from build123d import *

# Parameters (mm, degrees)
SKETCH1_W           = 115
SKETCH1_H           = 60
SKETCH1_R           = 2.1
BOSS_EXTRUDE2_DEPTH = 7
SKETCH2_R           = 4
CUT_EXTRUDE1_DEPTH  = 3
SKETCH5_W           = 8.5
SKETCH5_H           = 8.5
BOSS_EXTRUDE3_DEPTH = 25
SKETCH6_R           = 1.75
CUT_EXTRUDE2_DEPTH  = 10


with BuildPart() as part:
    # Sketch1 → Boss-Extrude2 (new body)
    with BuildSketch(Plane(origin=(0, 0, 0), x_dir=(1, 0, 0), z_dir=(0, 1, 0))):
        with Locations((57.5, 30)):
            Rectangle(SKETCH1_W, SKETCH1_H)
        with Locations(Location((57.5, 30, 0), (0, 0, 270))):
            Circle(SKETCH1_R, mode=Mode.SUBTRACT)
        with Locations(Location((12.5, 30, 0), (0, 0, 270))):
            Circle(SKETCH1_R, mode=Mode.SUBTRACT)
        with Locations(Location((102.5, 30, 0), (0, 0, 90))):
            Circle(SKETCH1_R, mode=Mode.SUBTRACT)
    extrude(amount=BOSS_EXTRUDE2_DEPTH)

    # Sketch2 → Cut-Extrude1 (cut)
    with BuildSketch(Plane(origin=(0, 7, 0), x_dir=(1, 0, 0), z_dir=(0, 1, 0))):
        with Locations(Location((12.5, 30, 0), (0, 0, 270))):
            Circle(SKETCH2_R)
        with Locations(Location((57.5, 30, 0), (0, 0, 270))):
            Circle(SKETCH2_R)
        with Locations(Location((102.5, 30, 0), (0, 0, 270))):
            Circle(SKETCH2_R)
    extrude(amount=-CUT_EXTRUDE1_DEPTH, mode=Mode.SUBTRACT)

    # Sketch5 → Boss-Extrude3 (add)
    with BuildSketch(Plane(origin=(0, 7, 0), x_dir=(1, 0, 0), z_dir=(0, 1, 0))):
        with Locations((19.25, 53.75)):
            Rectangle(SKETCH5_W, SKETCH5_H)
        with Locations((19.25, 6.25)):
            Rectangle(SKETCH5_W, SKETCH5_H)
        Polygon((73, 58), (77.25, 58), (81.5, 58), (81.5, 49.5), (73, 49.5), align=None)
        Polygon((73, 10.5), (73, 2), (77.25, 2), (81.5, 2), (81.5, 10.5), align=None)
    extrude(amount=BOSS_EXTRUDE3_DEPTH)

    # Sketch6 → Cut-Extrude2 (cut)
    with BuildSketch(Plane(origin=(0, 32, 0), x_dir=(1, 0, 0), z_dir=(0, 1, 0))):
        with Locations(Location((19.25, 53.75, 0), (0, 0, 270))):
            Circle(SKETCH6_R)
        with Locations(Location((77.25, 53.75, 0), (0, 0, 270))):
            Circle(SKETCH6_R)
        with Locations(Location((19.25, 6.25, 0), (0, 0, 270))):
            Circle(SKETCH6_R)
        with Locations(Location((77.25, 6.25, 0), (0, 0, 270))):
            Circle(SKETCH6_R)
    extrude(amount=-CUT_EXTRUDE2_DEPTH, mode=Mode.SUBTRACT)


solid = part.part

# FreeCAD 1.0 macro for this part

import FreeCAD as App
import Part
import Sketcher

doc = App.newDocument("Part")
body = doc.addObject("PartDesign::Body", "Body")

# Sketch on XZ plane
sketch1 = body.newObject("Sketcher::SketchObject", "Sketch")
sketch1.AttachmentSupport = (doc.getObject("XZ_Plane"), [""])
sketch1.MapMode = "FlatFace"
sketch1.addGeometry([
    Part.LineSegment(App.Vector(0, -60, 0), App.Vector(0, 0, 0)),  # 0
    Part.LineSegment(App.Vector(0, 0, 0), App.Vector(115, 0, 0)),  # 1
    Part.LineSegment(App.Vector(115, 0, 0), App.Vector(115, -60, 0)),  # 2
    Part.LineSegment(App.Vector(115, -60, 0), App.Vector(0, -60, 0)),  # 3
    Part.Circle(App.Vector(12.5, -30, 0), App.Vector(0, 0, 1), 2.1),  # 4
    Part.Circle(App.Vector(57.5, -30, 0), App.Vector(0, 0, 1), 2.1),  # 5
    Part.Circle(App.Vector(102.5, -30, 0), App.Vector(0, 0, 1), 2.1),  # 6
], False)
sketch1.addConstraint([
    Sketcher.Constraint("Coincident", 0, 2, 1, 1),
    Sketcher.Constraint("Coincident", 1, 2, 2, 1),
    Sketcher.Constraint("Coincident", 2, 2, 3, 1),
    Sketcher.Constraint("Coincident", 3, 2, 0, 1),
    Sketcher.Constraint("Vertical", 0),
    Sketcher.Constraint("Horizontal", 1),
    Sketcher.Constraint("Vertical", 2),
    Sketcher.Constraint("Horizontal", 3),
    Sketcher.Constraint("Coincident", 0, 2, -1, 1),
    Sketcher.Constraint("Equal", 4, 5),
    Sketcher.Constraint("Equal", 5, 6),
    Sketcher.Constraint("Horizontal", 4, 3, 5, 3),
    Sketcher.Constraint("Horizontal", 5, 3, 6, 3),
    Sketcher.Constraint("Diameter", 4, 4.2),
    Sketcher.Constraint("DistanceX", 1, 1, 1, 2, 115.0),
    Sketcher.Constraint("DistanceY", 0, 1, 0, 2, 60.0),
    Sketcher.Constraint("DistanceY", 4, 3, -1, 1, 30.0),
    Sketcher.Constraint("DistanceX", 4, 3, 5, 3, 45.0),
    Sketcher.Constraint("DistanceX", 5, 3, 6, 3, 45.0),
    Sketcher.Constraint("DistanceX", -1, 1, 4, 3, 12.5),
])
pad1 = body.newObject("PartDesign::Pad", "Pad")
pad1.Profile = sketch1
pad1.Length = 7
pad1.Reversed = True

# Sketch on XZ plane
sketch2 = body.newObject("Sketcher::SketchObject", "Sketch001")
sketch2.AttachmentSupport = (doc.getObject("XZ_Plane"), [""])
sketch2.MapMode = "FlatFace"
sketch2.AttachmentOffset = App.Placement(App.Vector(0, 0, -7), App.Rotation())
sketch2.addGeometry([
    Part.Circle(App.Vector(12.5, -30, 0), App.Vector(0, 0, 1), 4),
    Part.Circle(App.Vector(57.5, -30, 0), App.Vector(0, 0, 1), 4),
    Part.Circle(App.Vector(102.5, -30, 0), App.Vector(0, 0, 1), 4),
], False)
sketch2.addConstraint([
    Sketcher.Constraint("Equal", 0, 1),
    Sketcher.Constraint("Equal", 1, 2),
    Sketcher.Constraint("Horizontal", 0, 3, 1, 3),
    Sketcher.Constraint("Horizontal", 1, 3, 2, 3),
    Sketcher.Constraint("Diameter", 0, 8.0),
    Sketcher.Constraint("DistanceY", 0, 3, -1, 1, 30.0),
    Sketcher.Constraint("DistanceX", 0, 3, 1, 3, 45.0),
    Sketcher.Constraint("DistanceX", 1, 3, 2, 3, 45.0),
    Sketcher.Constraint("DistanceX", -1, 1, 0, 3, 12.5),
])
pocket1 = body.newObject("PartDesign::Pocket", "Pocket")
pocket1.Profile = sketch2
pocket1.Length = 3
pocket1.Reversed = True

# Sketch on XZ plane
sketch3 = body.newObject("Sketcher::SketchObject", "Sketch002")
sketch3.AttachmentSupport = (doc.getObject("XZ_Plane"), [""])
sketch3.MapMode = "FlatFace"
sketch3.AttachmentOffset = App.Placement(App.Vector(0, 0, -7), App.Rotation())
sketch3.addGeometry([
    Part.LineSegment(App.Vector(15, -58, 0), App.Vector(15, -49.5, 0)),  # 0
    Part.LineSegment(App.Vector(15, -49.5, 0), App.Vector(23.5, -49.5, 0)),  # 1
    Part.LineSegment(App.Vector(23.5, -49.5, 0), App.Vector(23.5, -58, 0)),  # 2
    Part.LineSegment(App.Vector(23.5, -58, 0), App.Vector(15, -58, 0)),  # 3
    Part.LineSegment(App.Vector(15, -10.5, 0), App.Vector(15, -2, 0)),  # 4
    Part.LineSegment(App.Vector(15, -2, 0), App.Vector(23.5, -2, 0)),  # 5
    Part.LineSegment(App.Vector(23.5, -2, 0), App.Vector(23.5, -10.5, 0)),  # 6
    Part.LineSegment(App.Vector(23.5, -10.5, 0), App.Vector(15, -10.5, 0)),  # 7
    Part.LineSegment(App.Vector(81.5, -58, 0), App.Vector(73, -58, 0)),  # 8
    Part.LineSegment(App.Vector(73, -58, 0), App.Vector(73, -49.5, 0)),  # 9
    Part.LineSegment(App.Vector(73, -49.5, 0), App.Vector(81.5, -49.5, 0)),  # 10
    Part.LineSegment(App.Vector(81.5, -49.5, 0), App.Vector(81.5, -58, 0)),  # 11
    Part.LineSegment(App.Vector(73, -10.5, 0), App.Vector(73, -2, 0)),  # 12
    Part.LineSegment(App.Vector(73, -2, 0), App.Vector(81.5, -2, 0)),  # 13
    Part.LineSegment(App.Vector(81.5, -2, 0), App.Vector(81.5, -10.5, 0)),  # 14
    Part.LineSegment(App.Vector(81.5, -10.5, 0), App.Vector(73, -10.5, 0)),  # 15
], False)
sketch3.addConstraint([
    Sketcher.Constraint("Coincident", 0, 2, 1, 1),
    Sketcher.Constraint("Coincident", 1, 2, 2, 1),
    Sketcher.Constraint("Coincident", 2, 2, 3, 1),
    Sketcher.Constraint("Coincident", 3, 2, 0, 1),
    Sketcher.Constraint("Coincident", 4, 2, 5, 1),
    Sketcher.Constraint("Coincident", 5, 2, 6, 1),
    Sketcher.Constraint("Coincident", 6, 2, 7, 1),
    Sketcher.Constraint("Coincident", 7, 2, 4, 1),
    Sketcher.Constraint("Coincident", 8, 2, 9, 1),
    Sketcher.Constraint("Coincident", 9, 2, 10, 1),
    Sketcher.Constraint("Coincident", 10, 2, 11, 1),
    Sketcher.Constraint("Coincident", 11, 2, 8, 1),
    Sketcher.Constraint("Coincident", 12, 2, 13, 1),
    Sketcher.Constraint("Coincident", 13, 2, 14, 1),
    Sketcher.Constraint("Coincident", 14, 2, 15, 1),
    Sketcher.Constraint("Coincident", 15, 2, 12, 1),
    Sketcher.Constraint("Vertical", 0),
    Sketcher.Constraint("Horizontal", 1),
    Sketcher.Constraint("Vertical", 2),
    Sketcher.Constraint("Horizontal", 3),
    Sketcher.Constraint("Vertical", 4),
    Sketcher.Constraint("Horizontal", 5),
    Sketcher.Constraint("Vertical", 6),
    Sketcher.Constraint("Horizontal", 7),
    Sketcher.Constraint("Horizontal", 8),
    Sketcher.Constraint("Vertical", 9),
    Sketcher.Constraint("Horizontal", 10),
    Sketcher.Constraint("Vertical", 11),
    Sketcher.Constraint("Vertical", 12),
    Sketcher.Constraint("Horizontal", 13),
    Sketcher.Constraint("Vertical", 14),
    Sketcher.Constraint("Horizontal", 15),
    Sketcher.Constraint("Horizontal", 3, 2, 8, 2),
    Sketcher.Constraint("Horizontal", 1, 2, 9, 2),
    Sketcher.Constraint("Horizontal", 5, 2, 12, 2),
    Sketcher.Constraint("Horizontal", 7, 2, 14, 2),
    Sketcher.Constraint("Vertical", 3, 2, 4, 2),
    Sketcher.Constraint("Vertical", 2, 2, 5, 2),
    Sketcher.Constraint("Vertical", 9, 2, 12, 2),
    Sketcher.Constraint("Vertical", 11, 2, 13, 2),
    Sketcher.Constraint("Equal", 7, 8),
    Sketcher.Constraint("Equal", 15, 0),
    Sketcher.Constraint("Equal", 2, 4),
    Sketcher.Constraint("DistanceX", 1, 1, 1, 2, 8.5),
    Sketcher.Constraint("DistanceX", -1, 1, 0, 2, 15.0),
    Sketcher.Constraint("DistanceY", 2, 2, -1, 1, 58.0),
    Sketcher.Constraint("DistanceY", 4, 2, -1, 1, 2.0),
    Sketcher.Constraint("DistanceX", -1, 1, 8, 2, 73.0),
])
pad2 = body.newObject("PartDesign::Pad", "Pad001")
pad2.Profile = sketch3
pad2.Length = 25
pad2.Reversed = True

# Sketch on XZ plane
sketch4 = body.newObject("Sketcher::SketchObject", "Sketch003")
sketch4.AttachmentSupport = (doc.getObject("XZ_Plane"), [""])
sketch4.MapMode = "FlatFace"
sketch4.AttachmentOffset = App.Placement(App.Vector(0, 0, -32), App.Rotation())
sketch4.addGeometry([
    Part.Circle(App.Vector(19.25, -53.75, 0), App.Vector(0, 0, 1), 1.75),
    Part.Circle(App.Vector(77.25, -53.75, 0), App.Vector(0, 0, 1), 1.75),
    Part.Circle(App.Vector(19.25, -6.25, 0), App.Vector(0, 0, 1), 1.75),
    Part.Circle(App.Vector(77.25, -6.25, 0), App.Vector(0, 0, 1), 1.75),
], False)
sketch4.addConstraint([
    Sketcher.Constraint("Equal", 0, 1),
    Sketcher.Constraint("Equal", 1, 2),
    Sketcher.Constraint("Equal", 2, 3),
    Sketcher.Constraint("Horizontal", 0, 3, 1, 3),
    Sketcher.Constraint("Horizontal", 2, 3, 3, 3),
    Sketcher.Constraint("Vertical", 0, 3, 2, 3),
    Sketcher.Constraint("Vertical", 1, 3, 3, 3),
    Sketcher.Constraint("Diameter", 0, 3.5),
    Sketcher.Constraint("DistanceX", 0, 3, 1, 3, 58.0),
    Sketcher.Constraint("DistanceY", 0, 3, 2, 3, 47.5),
    Sketcher.Constraint("DistanceX", -1, 1, 0, 3, 19.25),
    Sketcher.Constraint("DistanceY", 0, 3, -1, 1, 53.75),
])
pocket2 = body.newObject("PartDesign::Pocket", "Pocket001")
pocket2.Profile = sketch4
pocket2.Length = 10
pocket2.Reversed = True

doc.recompute()
